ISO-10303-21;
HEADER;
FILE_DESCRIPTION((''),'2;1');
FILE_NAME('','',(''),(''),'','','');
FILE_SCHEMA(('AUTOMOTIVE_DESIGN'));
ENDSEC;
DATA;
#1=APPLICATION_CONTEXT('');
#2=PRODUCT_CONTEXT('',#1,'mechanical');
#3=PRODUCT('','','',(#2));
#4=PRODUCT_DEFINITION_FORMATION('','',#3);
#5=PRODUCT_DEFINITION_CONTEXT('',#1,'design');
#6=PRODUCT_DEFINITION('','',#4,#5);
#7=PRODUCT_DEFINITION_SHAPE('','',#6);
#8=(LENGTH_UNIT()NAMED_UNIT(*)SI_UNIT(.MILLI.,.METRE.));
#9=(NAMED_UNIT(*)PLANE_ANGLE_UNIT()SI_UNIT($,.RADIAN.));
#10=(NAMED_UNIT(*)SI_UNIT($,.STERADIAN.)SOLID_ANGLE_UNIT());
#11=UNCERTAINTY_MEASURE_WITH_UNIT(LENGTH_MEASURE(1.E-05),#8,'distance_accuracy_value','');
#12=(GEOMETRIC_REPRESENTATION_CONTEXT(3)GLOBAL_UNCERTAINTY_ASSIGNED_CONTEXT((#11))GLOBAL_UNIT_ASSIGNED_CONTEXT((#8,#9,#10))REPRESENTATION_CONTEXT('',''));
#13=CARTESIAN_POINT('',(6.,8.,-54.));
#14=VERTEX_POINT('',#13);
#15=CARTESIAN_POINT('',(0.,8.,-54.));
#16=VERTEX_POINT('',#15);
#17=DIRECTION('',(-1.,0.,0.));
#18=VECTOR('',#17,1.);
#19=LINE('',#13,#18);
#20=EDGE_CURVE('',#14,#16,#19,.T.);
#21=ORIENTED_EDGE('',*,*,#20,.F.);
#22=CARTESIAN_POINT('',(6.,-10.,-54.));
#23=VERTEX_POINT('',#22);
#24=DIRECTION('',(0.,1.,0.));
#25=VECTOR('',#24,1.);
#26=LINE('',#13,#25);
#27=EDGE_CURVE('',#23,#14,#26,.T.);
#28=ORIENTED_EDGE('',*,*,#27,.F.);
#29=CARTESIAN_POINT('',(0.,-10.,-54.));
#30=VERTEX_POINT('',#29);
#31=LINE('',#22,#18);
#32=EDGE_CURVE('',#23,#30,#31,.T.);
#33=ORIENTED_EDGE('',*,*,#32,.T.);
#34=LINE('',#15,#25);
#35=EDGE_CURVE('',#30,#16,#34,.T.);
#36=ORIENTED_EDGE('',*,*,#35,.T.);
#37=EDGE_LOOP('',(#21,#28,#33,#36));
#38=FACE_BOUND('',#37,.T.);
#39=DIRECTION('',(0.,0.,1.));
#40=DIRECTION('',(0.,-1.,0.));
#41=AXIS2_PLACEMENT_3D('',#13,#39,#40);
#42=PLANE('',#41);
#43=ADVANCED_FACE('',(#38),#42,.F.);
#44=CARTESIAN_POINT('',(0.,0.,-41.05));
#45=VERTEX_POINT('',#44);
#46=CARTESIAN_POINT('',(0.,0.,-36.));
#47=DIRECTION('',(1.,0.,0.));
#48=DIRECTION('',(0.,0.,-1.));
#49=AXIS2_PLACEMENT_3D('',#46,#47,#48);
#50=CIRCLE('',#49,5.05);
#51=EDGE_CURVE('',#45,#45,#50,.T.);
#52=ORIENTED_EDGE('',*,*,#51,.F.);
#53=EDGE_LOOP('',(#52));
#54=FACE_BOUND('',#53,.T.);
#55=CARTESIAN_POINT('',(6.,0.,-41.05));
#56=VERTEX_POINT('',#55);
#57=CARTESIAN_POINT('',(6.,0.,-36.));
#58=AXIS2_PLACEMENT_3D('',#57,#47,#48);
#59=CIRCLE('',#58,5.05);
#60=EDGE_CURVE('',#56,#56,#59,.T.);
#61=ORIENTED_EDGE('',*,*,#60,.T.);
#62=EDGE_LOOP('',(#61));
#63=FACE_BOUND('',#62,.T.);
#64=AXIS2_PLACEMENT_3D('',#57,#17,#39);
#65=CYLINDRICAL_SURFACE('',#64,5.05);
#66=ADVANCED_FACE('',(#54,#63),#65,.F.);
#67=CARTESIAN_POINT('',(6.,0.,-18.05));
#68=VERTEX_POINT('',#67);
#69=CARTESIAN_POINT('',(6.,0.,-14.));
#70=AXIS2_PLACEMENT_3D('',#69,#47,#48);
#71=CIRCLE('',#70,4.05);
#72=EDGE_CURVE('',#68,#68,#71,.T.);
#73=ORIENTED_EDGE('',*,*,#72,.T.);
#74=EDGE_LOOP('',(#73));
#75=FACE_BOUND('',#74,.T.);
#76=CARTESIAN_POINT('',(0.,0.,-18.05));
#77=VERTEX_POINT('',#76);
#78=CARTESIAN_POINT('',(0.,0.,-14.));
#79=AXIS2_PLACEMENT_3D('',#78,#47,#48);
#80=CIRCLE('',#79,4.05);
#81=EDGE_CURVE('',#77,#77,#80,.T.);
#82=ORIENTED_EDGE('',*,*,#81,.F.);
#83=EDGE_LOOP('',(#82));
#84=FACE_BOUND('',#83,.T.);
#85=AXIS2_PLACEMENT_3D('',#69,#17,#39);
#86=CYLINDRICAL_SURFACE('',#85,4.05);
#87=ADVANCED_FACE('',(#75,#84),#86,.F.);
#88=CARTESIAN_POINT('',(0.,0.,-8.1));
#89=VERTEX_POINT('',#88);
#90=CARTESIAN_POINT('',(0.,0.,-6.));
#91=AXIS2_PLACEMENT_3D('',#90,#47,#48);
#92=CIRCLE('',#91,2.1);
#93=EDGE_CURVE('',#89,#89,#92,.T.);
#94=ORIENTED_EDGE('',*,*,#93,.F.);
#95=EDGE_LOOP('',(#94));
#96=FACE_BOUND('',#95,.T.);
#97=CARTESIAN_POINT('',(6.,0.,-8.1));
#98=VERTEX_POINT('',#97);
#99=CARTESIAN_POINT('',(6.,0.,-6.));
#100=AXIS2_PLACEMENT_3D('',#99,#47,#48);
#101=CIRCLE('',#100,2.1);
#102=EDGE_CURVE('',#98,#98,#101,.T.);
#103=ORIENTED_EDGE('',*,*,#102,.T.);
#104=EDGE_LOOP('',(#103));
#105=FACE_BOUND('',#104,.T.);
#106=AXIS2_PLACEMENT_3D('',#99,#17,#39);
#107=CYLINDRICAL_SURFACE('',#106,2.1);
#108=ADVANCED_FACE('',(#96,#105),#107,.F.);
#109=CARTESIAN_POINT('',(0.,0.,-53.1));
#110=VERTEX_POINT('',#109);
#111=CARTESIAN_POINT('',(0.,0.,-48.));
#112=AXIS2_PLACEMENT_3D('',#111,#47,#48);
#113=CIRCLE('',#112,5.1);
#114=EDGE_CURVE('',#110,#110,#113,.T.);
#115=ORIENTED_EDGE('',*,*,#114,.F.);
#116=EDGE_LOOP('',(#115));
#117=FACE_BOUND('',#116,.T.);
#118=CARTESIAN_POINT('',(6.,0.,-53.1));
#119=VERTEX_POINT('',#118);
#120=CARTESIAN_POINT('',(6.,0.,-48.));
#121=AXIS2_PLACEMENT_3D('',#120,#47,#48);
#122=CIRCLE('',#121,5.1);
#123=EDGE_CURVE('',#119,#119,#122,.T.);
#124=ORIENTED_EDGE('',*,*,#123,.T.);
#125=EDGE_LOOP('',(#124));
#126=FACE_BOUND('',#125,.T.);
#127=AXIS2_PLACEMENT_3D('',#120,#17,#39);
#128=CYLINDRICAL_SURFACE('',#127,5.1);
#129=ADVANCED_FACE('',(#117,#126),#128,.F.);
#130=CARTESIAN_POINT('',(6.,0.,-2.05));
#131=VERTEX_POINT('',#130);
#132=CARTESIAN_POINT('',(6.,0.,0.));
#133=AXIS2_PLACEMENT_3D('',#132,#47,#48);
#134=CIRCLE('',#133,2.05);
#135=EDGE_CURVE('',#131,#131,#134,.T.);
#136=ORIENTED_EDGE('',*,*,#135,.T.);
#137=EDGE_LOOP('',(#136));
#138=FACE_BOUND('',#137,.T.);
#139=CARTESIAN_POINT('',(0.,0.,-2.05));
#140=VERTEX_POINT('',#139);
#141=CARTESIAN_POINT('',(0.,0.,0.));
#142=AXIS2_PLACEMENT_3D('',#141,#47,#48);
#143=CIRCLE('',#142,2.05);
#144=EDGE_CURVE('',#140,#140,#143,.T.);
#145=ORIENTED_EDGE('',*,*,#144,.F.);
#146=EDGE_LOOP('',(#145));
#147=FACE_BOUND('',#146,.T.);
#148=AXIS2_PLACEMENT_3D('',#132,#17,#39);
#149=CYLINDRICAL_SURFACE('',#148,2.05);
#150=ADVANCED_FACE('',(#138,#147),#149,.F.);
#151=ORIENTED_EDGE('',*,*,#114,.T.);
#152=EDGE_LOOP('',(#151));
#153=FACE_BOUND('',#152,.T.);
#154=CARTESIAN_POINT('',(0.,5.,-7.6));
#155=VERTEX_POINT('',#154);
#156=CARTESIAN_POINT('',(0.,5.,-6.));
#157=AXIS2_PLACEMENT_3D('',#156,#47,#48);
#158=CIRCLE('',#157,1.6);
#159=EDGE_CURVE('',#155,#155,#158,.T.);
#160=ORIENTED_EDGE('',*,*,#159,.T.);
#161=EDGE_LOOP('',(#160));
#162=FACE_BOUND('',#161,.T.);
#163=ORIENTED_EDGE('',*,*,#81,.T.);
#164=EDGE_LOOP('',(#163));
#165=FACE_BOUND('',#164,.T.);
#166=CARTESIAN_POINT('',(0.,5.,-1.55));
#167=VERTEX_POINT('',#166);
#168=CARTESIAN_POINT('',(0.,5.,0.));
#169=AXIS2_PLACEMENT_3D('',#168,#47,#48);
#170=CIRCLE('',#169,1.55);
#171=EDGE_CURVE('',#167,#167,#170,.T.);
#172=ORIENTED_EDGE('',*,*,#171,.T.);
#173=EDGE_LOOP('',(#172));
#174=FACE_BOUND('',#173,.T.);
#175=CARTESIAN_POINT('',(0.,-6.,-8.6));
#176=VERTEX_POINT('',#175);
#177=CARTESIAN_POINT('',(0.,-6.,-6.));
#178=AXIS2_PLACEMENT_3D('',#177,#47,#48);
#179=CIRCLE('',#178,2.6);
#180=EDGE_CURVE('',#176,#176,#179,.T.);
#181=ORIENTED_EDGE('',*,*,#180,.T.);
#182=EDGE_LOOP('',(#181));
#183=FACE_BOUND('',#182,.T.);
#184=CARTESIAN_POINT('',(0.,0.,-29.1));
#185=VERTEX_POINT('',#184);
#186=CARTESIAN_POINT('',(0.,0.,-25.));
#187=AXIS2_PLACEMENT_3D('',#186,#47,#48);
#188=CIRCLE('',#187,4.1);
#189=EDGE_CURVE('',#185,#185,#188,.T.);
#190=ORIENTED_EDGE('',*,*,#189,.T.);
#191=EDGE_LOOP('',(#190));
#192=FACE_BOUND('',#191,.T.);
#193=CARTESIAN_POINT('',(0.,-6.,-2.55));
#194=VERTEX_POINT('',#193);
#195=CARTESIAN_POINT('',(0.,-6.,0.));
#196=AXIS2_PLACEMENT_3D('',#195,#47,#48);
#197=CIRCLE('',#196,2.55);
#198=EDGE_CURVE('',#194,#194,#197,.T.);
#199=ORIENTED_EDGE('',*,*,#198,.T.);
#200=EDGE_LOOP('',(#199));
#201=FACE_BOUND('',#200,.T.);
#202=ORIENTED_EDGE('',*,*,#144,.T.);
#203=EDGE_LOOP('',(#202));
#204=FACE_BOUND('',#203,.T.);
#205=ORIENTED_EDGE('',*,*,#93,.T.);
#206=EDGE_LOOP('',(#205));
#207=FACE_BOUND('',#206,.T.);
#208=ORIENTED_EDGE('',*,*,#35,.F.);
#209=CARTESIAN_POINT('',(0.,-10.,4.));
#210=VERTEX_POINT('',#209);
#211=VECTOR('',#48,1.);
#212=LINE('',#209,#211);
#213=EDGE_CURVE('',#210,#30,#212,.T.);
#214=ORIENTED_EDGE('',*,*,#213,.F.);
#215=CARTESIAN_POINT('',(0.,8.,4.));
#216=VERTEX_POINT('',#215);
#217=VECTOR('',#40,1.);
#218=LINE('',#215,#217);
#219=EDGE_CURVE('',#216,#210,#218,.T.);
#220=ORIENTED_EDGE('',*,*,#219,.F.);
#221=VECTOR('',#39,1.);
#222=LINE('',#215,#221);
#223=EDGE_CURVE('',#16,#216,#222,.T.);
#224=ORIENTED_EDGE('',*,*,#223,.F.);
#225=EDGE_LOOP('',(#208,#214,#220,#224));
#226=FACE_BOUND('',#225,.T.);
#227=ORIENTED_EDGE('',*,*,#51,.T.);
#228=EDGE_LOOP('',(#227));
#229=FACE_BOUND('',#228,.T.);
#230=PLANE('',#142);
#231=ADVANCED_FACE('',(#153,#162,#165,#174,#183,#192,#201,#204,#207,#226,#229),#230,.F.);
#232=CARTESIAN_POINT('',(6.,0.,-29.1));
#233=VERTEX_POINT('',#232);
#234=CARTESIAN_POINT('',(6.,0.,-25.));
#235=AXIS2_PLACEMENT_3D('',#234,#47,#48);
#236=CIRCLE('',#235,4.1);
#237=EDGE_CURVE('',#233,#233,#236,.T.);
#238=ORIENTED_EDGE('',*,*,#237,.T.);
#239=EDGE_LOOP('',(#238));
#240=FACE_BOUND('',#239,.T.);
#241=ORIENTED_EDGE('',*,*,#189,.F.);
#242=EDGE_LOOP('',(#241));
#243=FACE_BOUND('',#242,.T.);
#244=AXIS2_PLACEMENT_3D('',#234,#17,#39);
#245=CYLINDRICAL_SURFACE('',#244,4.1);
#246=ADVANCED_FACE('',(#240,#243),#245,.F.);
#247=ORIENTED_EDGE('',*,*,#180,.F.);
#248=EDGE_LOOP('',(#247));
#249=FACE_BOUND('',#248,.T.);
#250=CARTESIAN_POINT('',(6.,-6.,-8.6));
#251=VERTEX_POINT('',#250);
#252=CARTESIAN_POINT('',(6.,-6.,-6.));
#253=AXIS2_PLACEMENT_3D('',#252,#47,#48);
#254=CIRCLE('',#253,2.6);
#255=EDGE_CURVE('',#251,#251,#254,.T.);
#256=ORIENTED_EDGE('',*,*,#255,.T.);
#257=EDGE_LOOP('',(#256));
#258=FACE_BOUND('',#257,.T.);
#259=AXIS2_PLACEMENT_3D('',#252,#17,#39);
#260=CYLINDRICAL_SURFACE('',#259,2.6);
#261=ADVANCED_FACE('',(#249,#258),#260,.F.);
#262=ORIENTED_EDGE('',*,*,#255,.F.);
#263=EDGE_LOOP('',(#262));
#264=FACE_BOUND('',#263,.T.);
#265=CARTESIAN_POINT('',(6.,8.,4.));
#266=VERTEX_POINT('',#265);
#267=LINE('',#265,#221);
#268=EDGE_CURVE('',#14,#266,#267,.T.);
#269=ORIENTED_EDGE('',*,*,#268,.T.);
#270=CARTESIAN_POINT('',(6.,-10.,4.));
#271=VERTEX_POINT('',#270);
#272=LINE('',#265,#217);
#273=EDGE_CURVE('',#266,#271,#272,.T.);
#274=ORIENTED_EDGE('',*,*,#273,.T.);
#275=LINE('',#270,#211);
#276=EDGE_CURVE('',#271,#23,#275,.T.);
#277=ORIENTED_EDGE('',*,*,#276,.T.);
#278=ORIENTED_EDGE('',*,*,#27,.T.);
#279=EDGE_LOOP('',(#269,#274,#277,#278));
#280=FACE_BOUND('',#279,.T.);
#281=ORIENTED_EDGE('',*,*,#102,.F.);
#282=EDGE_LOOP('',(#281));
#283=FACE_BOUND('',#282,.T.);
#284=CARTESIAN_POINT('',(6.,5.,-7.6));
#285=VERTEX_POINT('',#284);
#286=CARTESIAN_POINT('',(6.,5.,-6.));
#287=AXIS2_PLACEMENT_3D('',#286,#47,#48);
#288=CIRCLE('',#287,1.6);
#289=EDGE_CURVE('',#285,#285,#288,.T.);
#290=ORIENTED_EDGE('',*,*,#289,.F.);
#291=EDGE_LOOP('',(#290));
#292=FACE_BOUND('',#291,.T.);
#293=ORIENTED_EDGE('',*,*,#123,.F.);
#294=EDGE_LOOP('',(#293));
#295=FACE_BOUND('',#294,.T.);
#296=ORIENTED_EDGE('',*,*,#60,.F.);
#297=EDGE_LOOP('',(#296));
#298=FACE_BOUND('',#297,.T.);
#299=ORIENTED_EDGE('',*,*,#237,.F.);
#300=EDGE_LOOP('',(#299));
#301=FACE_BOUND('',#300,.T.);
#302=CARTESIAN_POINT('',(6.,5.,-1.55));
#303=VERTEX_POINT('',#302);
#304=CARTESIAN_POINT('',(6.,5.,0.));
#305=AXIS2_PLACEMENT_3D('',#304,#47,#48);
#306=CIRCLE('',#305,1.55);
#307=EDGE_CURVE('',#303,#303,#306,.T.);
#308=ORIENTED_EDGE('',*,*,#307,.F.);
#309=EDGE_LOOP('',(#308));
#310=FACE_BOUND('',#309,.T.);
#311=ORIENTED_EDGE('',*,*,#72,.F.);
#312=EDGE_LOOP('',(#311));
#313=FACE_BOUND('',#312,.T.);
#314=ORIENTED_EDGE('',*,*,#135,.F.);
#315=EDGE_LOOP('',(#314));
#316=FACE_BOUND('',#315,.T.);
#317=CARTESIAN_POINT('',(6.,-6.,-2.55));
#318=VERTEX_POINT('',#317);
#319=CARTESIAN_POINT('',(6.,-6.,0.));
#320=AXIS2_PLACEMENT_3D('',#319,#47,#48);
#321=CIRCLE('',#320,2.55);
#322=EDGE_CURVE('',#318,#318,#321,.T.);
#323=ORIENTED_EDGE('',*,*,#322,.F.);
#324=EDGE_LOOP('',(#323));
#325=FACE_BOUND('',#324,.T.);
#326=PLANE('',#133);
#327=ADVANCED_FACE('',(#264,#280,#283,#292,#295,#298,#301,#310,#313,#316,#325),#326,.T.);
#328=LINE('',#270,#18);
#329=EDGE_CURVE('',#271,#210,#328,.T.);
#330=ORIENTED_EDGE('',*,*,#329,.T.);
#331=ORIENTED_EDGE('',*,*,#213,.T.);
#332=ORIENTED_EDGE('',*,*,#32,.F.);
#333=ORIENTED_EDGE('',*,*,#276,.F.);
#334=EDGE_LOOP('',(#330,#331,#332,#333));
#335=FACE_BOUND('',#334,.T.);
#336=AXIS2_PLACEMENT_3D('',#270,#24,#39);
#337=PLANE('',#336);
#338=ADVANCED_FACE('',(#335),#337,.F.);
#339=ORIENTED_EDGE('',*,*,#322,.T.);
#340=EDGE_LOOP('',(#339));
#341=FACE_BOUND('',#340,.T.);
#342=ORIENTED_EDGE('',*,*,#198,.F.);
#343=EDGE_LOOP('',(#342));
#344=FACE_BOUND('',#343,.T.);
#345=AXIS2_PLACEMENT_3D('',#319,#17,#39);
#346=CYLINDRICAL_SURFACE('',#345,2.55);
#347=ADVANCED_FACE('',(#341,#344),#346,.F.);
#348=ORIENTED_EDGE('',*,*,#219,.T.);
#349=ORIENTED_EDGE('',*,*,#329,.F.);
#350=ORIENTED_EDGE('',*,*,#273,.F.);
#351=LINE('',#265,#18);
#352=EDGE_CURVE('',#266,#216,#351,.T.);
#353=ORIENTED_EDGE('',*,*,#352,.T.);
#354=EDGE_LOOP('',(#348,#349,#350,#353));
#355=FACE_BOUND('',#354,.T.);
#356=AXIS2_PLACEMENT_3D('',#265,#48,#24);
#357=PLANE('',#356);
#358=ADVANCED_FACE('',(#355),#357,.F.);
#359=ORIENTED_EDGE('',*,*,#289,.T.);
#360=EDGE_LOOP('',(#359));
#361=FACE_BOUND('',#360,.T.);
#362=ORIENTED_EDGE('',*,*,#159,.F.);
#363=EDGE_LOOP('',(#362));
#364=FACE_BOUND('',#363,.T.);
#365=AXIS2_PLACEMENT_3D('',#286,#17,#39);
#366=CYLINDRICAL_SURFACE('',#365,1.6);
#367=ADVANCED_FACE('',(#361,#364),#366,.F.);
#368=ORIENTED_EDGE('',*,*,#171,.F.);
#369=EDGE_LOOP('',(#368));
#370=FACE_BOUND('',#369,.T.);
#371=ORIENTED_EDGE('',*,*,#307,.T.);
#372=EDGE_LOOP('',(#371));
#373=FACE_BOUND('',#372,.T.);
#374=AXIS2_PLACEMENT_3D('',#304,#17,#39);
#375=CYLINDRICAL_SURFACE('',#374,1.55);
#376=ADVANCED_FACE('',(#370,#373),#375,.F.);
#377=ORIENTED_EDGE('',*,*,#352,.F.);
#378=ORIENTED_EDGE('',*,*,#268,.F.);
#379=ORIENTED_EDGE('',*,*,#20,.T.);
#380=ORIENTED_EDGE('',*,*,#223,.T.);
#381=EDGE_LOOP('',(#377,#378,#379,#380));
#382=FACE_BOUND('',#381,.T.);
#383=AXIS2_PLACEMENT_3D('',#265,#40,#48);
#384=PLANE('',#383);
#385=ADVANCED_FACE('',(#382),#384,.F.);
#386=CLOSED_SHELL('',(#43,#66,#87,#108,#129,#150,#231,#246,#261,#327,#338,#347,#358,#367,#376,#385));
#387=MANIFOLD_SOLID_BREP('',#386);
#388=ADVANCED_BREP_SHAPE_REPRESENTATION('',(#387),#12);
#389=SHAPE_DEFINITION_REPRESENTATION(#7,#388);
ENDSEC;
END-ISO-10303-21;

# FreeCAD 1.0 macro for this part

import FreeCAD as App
import Part
import Sketcher

doc = App.newDocument("Part")
params = doc.addObject("Spreadsheet::Sheet", "Params")
for row, (alias, value) in enumerate([
    ("sketch1_diameter", "5.1 mm"),
    ("sketch1_diameter2", "5.2 mm"),
    ("sketch1_diameter3", "4.1 mm"),
    ("sketch1_diameter4", "4.2 mm"),
    ("sketch1_diameter5", "8.1 mm"),
    ("pad1_length", "6 mm"),
], start=1):
    params.set(f"A{row}", alias)
    params.set(f"B{row}", "=" + value)
    params.setAlias(f"B{row}", alias)

body = doc.addObject("PartDesign::Body", "Body")

# Sketch on YZ plane
sketch1 = doc.addObject("Sketcher::SketchObject", "Sketch")
body.addObject(sketch1)
sketch1.AttachmentSupport = (doc.YZ_Plane, [""])
sketch1.MapMode = "FlatFace"
sketch1.addGeometry([
    Part.LineSegment(App.Vector(8, 4, 0), App.Vector(-10, 4, 0)),  # 0
    Part.LineSegment(App.Vector(-10, 4, 0), App.Vector(-10, -54, 0)),  # 1
    Part.LineSegment(App.Vector(-10, -54, 0), App.Vector(8, -54, 0)),  # 2
    Part.LineSegment(App.Vector(8, -54, 0), App.Vector(8, 4, 0)),  # 3
    Part.Circle(App.Vector(-6, 0, 0), App.Vector(0, 0, 1), 2.5),  # 4
    Part.Circle(App.Vector(-6, -6, 0), App.Vector(0, 0, 1), 2.6),  # 5
    Part.Circle(App.Vector(0, 0, 0), App.Vector(0, 0, 1), 2),  # 6
    Part.Circle(App.Vector(0, -6, 0), App.Vector(0, 0, 1), 2.1),  # 7
    Part.Circle(App.Vector(0, -14, 0), App.Vector(0, 0, 1), 4),  # 8
    Part.Circle(App.Vector(0, -25, 0), App.Vector(0, 0, 1), 4.1),  # 9
    Part.Circle(App.Vector(5, 0, 0), App.Vector(0, 0, 1), 1.6),  # 10
    Part.Circle(App.Vector(5, -6, 0), App.Vector(0, 0, 1), 1.6),  # 11
    Part.Circle(App.Vector(0, -36, 0), App.Vector(0, 0, 1), 5),  # 12
    Part.Circle(App.Vector(0, -48, 0), App.Vector(0, 0, 1), 5.1),  # 13
], False)
sketch1.addConstraint([
    Sketcher.Constraint("Coincident", 0, 2, 1, 1),
    Sketcher.Constraint("Coincident", 1, 2, 2, 1),
    Sketcher.Constraint("Coincident", 2, 2, 3, 1),
    Sketcher.Constraint("Coincident", 3, 2, 0, 1),
    Sketcher.Constraint("Horizontal", 0),
    Sketcher.Constraint("Vertical", 1),
    Sketcher.Constraint("Horizontal", 2),
    Sketcher.Constraint("Vertical", 3),
    Sketcher.Constraint("Coincident", 6, 3, -1, 1),
    Sketcher.Constraint("PointOnObject", 4, 3, -1),
    Sketcher.Constraint("PointOnObject", 7, 3, -2),
    Sketcher.Constraint("PointOnObject", 8, 3, -2),
    Sketcher.Constraint("PointOnObject", 9, 3, -2),
    Sketcher.Constraint("PointOnObject", 10, 3, -1),
    Sketcher.Constraint("PointOnObject", 12, 3, -2),
    Sketcher.Constraint("PointOnObject", 13, 3, -2),
    Sketcher.Constraint("Horizontal", 5, 3, 7, 3),
    Sketcher.Constraint("Horizontal", 7, 3, 11, 3),
    Sketcher.Constraint("Vertical", 4, 3, 5, 3),
    Sketcher.Constraint("Vertical", 10, 3, 11, 3),
    Sketcher.Constraint("Diameter", 4, 5.1),
    Sketcher.Constraint("Diameter", 5, 5.2),
    Sketcher.Constraint("Diameter", 6, 4.1),
    Sketcher.Constraint("Diameter", 7, 4.2),
    Sketcher.Constraint("Diameter", 8, 8.1),
    Sketcher.Constraint("Diameter", 9, 8.2),
    Sketcher.Constraint("Diameter", 10, 3.1),
    Sketcher.Constraint("Diameter", 11, 3.2),
    Sketcher.Constraint("Diameter", 12, 10.1),
    Sketcher.Constraint("Diameter", 13, 10.2),
    Sketcher.Constraint("DistanceX", 0, 2, 0, 1, 18.0),
    Sketcher.Constraint("DistanceY", 1, 2, 1, 1, 58.0),
    Sketcher.Constraint("DistanceX", 4, 3, -1, 1, 6.0),
    Sketcher.Constraint("DistanceY", 5, 3, -1, 1, 6.0),
    Sketcher.Constraint("DistanceY", 8, 3, -1, 1, 14.0),
    Sketcher.Constraint("DistanceY", 9, 3, -1, 1, 25.0),
    Sketcher.Constraint("DistanceX", -1, 1, 10, 3, 5.0),
    Sketcher.Constraint("DistanceY", 12, 3, -1, 1, 36.0),
    Sketcher.Constraint("DistanceY", 13, 3, -1, 1, 48.0),
    Sketcher.Constraint("DistanceX", 0, 2, -1, 1, 10.0),
    Sketcher.Constraint("DistanceY", -1, 1, 0, 2, 4.0),
])
sketch1.setExpression("Constraints[20]", "Params.sketch1_diameter")
sketch1.setExpression("Constraints[21]", "Params.sketch1_diameter2")
sketch1.setExpression("Constraints[22]", "Params.sketch1_diameter3")
sketch1.setExpression("Constraints[23]", "Params.sketch1_diameter4")
sketch1.setExpression("Constraints[24]", "Params.sketch1_diameter5")
pad1 = doc.addObject("PartDesign::Pad", "Pad")
body.addObject(pad1)
pad1.Profile = sketch1
pad1.setExpression("Length", "Params.pad1_length")

doc.recompute()
